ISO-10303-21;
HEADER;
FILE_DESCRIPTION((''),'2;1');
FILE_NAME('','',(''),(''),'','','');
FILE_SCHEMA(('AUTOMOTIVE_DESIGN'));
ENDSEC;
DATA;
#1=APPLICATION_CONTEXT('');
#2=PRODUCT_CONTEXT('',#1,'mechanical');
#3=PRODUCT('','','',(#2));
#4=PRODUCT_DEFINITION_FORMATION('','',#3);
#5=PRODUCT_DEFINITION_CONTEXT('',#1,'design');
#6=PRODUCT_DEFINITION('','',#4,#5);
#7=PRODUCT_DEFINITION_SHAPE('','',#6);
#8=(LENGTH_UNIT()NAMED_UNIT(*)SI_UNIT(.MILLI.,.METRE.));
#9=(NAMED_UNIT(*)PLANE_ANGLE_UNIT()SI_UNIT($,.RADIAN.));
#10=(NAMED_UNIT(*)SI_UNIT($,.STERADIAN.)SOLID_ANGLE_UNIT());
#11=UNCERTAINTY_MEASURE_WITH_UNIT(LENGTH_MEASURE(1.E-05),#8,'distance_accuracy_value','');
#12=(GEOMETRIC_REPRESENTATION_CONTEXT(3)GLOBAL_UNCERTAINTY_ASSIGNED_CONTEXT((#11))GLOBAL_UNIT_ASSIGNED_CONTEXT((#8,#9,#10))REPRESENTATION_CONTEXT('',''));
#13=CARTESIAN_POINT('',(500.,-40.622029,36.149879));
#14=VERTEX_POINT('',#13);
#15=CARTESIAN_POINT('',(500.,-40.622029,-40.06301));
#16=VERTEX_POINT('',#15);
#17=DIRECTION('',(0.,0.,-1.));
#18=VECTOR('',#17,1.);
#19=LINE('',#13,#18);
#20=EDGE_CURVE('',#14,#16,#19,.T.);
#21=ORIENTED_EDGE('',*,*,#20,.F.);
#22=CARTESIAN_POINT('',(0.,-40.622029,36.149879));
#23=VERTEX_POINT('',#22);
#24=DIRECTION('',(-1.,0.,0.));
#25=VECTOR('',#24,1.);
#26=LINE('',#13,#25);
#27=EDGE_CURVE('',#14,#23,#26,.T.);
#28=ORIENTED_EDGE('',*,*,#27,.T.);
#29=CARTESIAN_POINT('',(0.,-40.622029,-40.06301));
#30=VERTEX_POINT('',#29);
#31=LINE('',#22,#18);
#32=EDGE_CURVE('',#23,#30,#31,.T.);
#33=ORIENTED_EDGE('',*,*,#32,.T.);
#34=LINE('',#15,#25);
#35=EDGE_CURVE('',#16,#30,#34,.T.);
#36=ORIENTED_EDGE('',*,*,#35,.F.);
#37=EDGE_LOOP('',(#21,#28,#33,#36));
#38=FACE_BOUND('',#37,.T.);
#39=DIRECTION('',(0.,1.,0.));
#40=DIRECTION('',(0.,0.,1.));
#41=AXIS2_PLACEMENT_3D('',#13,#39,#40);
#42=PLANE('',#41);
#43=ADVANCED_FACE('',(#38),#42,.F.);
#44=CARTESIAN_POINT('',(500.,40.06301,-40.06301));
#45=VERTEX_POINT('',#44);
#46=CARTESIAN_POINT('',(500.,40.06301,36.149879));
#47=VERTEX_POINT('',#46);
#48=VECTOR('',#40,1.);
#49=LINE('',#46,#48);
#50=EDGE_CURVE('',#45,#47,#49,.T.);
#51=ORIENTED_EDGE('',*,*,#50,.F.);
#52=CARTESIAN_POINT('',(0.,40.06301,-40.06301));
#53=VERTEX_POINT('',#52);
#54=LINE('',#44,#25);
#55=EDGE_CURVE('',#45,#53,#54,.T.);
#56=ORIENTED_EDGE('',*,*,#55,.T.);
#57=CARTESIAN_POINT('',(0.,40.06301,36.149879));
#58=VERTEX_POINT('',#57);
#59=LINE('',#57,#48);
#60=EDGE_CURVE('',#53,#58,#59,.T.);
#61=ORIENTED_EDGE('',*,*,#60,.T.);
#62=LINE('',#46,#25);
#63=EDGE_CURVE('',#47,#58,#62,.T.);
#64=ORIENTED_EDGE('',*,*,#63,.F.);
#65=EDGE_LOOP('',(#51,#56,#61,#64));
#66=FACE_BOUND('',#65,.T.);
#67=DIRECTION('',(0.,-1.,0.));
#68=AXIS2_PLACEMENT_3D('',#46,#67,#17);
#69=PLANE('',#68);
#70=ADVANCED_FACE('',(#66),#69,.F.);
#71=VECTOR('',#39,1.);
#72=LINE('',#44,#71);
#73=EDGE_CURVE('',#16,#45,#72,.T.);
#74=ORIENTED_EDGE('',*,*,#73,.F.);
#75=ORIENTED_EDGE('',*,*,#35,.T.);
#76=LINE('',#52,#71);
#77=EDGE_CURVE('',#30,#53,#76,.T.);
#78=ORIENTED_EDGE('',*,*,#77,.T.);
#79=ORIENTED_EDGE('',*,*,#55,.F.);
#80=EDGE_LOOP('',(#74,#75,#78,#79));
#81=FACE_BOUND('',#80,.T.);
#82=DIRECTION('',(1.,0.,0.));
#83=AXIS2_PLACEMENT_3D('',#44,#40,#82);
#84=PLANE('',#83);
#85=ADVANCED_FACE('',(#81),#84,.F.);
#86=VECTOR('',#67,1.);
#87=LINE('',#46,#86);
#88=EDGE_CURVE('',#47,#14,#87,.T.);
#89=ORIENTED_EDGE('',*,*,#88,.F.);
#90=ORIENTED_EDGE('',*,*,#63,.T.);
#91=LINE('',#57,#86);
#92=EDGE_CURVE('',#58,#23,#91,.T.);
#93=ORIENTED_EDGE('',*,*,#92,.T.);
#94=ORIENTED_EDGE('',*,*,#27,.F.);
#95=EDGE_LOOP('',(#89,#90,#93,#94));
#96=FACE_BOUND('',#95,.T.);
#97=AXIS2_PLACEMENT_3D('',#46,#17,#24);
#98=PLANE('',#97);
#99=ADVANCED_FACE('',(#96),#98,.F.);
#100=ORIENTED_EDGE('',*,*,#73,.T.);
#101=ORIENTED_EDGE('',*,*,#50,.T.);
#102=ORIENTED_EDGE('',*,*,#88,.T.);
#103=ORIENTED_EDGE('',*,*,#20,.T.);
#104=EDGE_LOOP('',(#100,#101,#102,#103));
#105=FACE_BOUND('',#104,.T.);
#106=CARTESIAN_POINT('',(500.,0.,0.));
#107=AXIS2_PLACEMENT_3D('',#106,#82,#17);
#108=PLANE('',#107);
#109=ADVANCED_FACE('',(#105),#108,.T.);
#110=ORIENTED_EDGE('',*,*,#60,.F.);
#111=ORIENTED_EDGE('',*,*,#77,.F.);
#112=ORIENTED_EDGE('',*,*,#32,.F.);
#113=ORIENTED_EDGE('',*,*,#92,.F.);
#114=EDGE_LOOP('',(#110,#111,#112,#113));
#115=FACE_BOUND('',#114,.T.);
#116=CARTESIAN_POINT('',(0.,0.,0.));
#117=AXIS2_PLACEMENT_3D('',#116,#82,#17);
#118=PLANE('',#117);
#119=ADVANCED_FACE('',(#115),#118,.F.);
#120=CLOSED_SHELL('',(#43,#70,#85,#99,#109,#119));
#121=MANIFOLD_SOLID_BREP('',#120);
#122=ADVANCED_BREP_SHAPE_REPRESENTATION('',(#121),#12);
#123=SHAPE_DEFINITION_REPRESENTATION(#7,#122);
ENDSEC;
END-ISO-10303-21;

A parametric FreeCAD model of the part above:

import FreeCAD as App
import Part
import Sketcher
Q = App.Units.Quantity

doc = App.newDocument("Part")
body = doc.addObject("PartDesign::Body", "Body")

# Sketch on YZ plane
sketch1 = body.newObject("Sketcher::SketchObject", "Sketch")
sketch1.AttachmentSupport = (doc.getObject("YZ_Plane"), [""])
sketch1.MapMode = "FlatFace"
sketch1.addGeometry([
    Part.LineSegment(App.Vector(40.06301, 36.149879, 0), App.Vector(-40.622029, 36.149879, 0)),
    Part.LineSegment(App.Vector(-40.622029, 36.149879, 0), App.Vector(-40.622029, -40.06301, 0)),
    Part.LineSegment(App.Vector(-40.622029, -40.06301, 0), App.Vector(40.06301, -40.06301, 0)),
    Part.LineSegment(App.Vector(40.06301, -40.06301, 0), App.Vector(40.06301, 36.149879, 0)),
], False)
sketch1.addConstraint([
    Sketcher.Constraint("Coincident", 0, 2, 1, 1),
    Sketcher.Constraint("Coincident", 1, 2, 2, 1),
    Sketcher.Constraint("Coincident", 2, 2, 3, 1),
    Sketcher.Constraint("Coincident", 3, 2, 0, 1),
    Sketcher.Constraint("Horizontal", 0),
    Sketcher.Constraint("Vertical", 1),
    Sketcher.Constraint("Horizontal", 2),
    Sketcher.Constraint("Vertical", 3),
    Sketcher.Constraint("DistanceX", 0, 2, 0, 1, Q("80.685038 mm")),
    Sketcher.Constraint("DistanceY", 1, 2, 1, 1, Q("76.212888 mm")),
    Sketcher.Constraint("DistanceX", 0, 2, -1, 1, Q("40.622029 mm")),
    Sketcher.Constraint("DistanceY", -1, 1, 0, 2, Q("36.149879 mm")),
])
pad1 = body.newObject("PartDesign::Pad", "Pad")
pad1.Profile = sketch1
pad1.Length = 500

doc.recompute()
